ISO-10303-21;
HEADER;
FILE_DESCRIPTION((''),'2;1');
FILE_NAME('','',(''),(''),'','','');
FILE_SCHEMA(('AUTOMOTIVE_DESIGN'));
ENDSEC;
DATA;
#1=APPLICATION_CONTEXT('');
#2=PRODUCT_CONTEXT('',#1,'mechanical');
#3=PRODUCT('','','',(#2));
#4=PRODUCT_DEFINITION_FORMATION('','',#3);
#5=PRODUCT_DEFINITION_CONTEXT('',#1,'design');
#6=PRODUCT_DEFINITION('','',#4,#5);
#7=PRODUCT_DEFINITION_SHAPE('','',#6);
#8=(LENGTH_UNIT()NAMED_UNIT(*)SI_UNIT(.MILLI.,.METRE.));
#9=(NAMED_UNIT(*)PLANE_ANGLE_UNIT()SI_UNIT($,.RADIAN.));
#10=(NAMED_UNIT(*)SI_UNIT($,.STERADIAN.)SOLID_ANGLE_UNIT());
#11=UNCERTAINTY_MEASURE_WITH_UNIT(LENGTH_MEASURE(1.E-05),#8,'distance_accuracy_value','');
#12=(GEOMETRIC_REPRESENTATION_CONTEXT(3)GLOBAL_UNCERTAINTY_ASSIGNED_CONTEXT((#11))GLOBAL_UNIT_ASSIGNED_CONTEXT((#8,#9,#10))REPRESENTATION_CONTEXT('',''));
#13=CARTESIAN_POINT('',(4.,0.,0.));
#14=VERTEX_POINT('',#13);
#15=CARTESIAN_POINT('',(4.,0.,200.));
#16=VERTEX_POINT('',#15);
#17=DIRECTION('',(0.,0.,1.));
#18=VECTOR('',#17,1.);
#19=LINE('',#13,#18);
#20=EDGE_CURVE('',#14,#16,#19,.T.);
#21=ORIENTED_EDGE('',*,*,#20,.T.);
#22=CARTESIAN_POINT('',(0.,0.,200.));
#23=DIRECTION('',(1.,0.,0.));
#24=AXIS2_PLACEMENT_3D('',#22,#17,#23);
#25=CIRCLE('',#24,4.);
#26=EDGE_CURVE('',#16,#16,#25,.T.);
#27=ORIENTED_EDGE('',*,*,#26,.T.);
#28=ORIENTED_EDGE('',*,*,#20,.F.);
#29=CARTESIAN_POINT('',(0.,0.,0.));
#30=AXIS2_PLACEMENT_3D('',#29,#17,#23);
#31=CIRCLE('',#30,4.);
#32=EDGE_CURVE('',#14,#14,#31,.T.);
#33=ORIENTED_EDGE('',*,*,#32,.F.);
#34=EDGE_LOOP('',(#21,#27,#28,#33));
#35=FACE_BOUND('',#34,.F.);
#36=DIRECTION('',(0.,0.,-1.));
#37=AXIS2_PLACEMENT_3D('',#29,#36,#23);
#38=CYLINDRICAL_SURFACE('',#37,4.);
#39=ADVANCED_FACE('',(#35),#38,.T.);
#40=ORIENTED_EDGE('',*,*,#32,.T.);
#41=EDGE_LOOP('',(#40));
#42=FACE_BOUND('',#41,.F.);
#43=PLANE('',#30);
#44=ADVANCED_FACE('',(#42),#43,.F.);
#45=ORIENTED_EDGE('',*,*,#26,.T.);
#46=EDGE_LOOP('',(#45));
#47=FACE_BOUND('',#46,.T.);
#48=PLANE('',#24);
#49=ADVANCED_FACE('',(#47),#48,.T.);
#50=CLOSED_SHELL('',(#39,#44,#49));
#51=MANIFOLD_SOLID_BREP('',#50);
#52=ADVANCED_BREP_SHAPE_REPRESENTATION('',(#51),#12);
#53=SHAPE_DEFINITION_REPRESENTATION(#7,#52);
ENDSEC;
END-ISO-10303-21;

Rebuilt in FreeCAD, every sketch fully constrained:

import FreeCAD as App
import Part
import Sketcher

doc = App.newDocument("Part")
params = doc.addObject("Spreadsheet::Sheet", "Params")
for row, (alias, value) in enumerate([
    ("sketch1_diameter", "8 mm"),
    ("pad1_length", "200 mm"),
], start=1):
    params.set(f"A{row}", alias)
    params.set(f"B{row}", "=" + value)
    params.setAlias(f"B{row}", alias)

body = doc.addObject("PartDesign::Body", "Body")

sketch1 = body.newObject("Sketcher::SketchObject", "Sketch")
sketch1.AttachmentSupport = (doc.getObject("XY_Plane"), [""])
sketch1.MapMode = "FlatFace"
sketch1.addGeometry(Part.Circle(App.Vector(0, 0, 0), App.Vector(0, 0, 1), 4), False)
sketch1.addConstraint(Sketcher.Constraint("Coincident", 0, 3, -1, 1))
sketch1.addConstraint(Sketcher.Constraint("Diameter", 0, 8.0))
sketch1.setExpression("Constraints[1]", "Params.sketch1_diameter")
pad1 = body.newObject("PartDesign::Pad", "Pad")
pad1.Profile = sketch1
pad1.setExpression("Length", "Params.pad1_length")

doc.recompute()
